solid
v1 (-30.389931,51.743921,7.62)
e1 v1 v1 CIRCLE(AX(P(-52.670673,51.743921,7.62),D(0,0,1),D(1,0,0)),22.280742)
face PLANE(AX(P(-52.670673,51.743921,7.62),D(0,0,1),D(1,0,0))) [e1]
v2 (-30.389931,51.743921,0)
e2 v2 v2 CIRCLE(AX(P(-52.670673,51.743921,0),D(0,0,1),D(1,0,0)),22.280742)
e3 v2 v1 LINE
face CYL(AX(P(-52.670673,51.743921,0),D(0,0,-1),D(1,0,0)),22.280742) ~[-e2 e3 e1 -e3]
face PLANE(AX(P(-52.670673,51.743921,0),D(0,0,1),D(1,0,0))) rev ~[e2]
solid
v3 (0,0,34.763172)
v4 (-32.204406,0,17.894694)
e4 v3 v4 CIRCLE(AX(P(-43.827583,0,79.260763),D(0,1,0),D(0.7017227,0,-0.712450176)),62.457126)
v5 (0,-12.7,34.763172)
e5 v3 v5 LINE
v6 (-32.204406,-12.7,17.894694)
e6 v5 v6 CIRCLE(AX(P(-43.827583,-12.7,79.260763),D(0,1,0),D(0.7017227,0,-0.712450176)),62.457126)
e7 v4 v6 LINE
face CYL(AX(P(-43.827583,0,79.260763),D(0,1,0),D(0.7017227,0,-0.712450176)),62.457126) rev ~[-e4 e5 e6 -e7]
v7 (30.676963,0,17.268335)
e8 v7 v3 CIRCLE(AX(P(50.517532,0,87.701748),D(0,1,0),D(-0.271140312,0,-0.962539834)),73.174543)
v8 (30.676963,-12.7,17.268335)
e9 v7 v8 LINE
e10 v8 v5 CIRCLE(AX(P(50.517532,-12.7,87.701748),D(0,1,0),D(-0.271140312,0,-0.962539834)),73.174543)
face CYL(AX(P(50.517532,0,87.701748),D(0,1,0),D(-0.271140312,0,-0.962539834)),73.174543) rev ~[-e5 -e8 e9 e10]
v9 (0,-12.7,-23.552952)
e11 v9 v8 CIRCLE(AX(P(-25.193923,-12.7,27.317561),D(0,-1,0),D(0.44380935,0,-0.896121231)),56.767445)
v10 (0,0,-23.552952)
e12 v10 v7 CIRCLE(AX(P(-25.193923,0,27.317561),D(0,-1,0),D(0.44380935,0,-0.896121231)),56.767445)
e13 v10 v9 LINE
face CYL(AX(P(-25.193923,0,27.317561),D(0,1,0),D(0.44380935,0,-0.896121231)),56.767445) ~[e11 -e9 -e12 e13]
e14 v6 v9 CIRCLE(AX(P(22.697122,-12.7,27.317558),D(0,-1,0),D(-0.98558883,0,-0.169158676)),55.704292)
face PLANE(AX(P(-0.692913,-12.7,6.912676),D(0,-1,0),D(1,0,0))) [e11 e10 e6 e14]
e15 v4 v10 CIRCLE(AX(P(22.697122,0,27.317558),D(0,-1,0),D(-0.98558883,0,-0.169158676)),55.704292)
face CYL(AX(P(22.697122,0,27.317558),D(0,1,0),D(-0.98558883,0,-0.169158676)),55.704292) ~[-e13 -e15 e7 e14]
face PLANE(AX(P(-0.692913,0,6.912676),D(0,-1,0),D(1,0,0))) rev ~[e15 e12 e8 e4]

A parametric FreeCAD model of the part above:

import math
import FreeCAD as App
import Part
import Sketcher

V = App.Vector

doc = App.newDocument("Part")
params = doc.addObject("Spreadsheet::Sheet", "Params")
for row, (alias, value) in enumerate([
    ("pad1_length", "0.5 in"),
    ("pad2_length", "0.3 in"),
], start=1):
    params.set(f"A{row}", alias)
    params.set(f"B{row}", "=" + value)
    params.setAlias(f"B{row}", alias)

body = doc.addObject("PartDesign::Body", "Body")

# Sketch on XZ plane
sketch1 = doc.addObject("Sketcher::SketchObject", "Sketch")
body.addObject(sketch1)
sketch1.AttachmentSupport = (doc.XZ_Plane, [""])
sketch1.MapMode = "FlatFace"
sketch1.addGeometry(Part.ArcOfCircle(Part.Circle(V(-44, 79, 0), V(0, 0, 1), 62), math.radians(-79), math.radians(-45)), False)
sketch1.addGeometry(Part.ArcOfCircle(Part.Circle(V(23, 27, 0), V(0, 0, 1), 56), math.radians(-170), math.radians(-114)), False)
sketch1.addGeometry(Part.ArcOfCircle(Part.Circle(V(-25, 27, 0), V(0, 0, 1), 57), math.radians(-64), math.radians(-10)), False)
sketch1.addGeometry(Part.ArcOfCircle(Part.Circle(V(51, 88, 0), V(0, 0, 1), 73), math.radians(-134), math.radians(-106)), False)
sketch1.addConstraint(Sketcher.Constraint("Coincident", 0, 1, 1, 1))
sketch1.addConstraint(Sketcher.Constraint("Coincident", 1, 2, 2, 1))
sketch1.addConstraint(Sketcher.Constraint("Coincident", 2, 2, 3, 2))
sketch1.addConstraint(Sketcher.Constraint("Coincident", 3, 1, 0, 2))
sketch1.addConstraint(Sketcher.Constraint("PointOnObject", 1, 2, -2))
sketch1.addConstraint(Sketcher.Constraint("PointOnObject", 3, 1, -2))
sketch1.addConstraint(Sketcher.Constraint("Radius", 0, 62.457126))
sketch1.addConstraint(Sketcher.Constraint("Radius", 1, 55.704292))
sketch1.addConstraint(Sketcher.Constraint("Radius", 2, 56.767445))
sketch1.addConstraint(Sketcher.Constraint("Radius", 3, 73.174543))
sketch1.addConstraint(Sketcher.Constraint("DistanceY", 2, 3, 0, 3, 51.943202))
sketch1.addConstraint(Sketcher.Constraint("DistanceY", 1, 2, 3, 3, 111.2547))
sketch1.addConstraint(Sketcher.Constraint("DistanceY", -1, 1, 1, 3, 27.317558))
sketch1.addConstraint(Sketcher.Constraint("DistanceY", -1, 1, 2, 3, 27.317561))
sketch1.addConstraint(Sketcher.Constraint("DistanceX", -1, 1, 3, 3, 50.517532))
sketch1.addConstraint(Sketcher.Constraint("DistanceY", -1, 1, 3, 1, 34.763172))
pad1 = doc.addObject("PartDesign::Pad", "Pad")
body.addObject(pad1)
pad1.Profile = sketch1
pad1.setExpression("Length", "Params.pad1_length")
body2 = doc.addObject("PartDesign::Body", "Body001")

# Sketch on XY plane
sketch2 = doc.addObject("Sketcher::SketchObject", "Sketch001")
body2.addObject(sketch2)
sketch2.AttachmentSupport = (doc.getObject("XY_Plane001"), [""])
sketch2.MapMode = "FlatFace"
sketch2.addGeometry(Part.Circle(V(-53, 52, 0), V(0, 0, 1), 22), False)
sketch2.addConstraint(Sketcher.Constraint("Diameter", 0, 44.561484))
sketch2.addConstraint(Sketcher.Constraint("DistanceY", -1, 1, 0, 3, 51.743921))
sketch2.addConstraint(Sketcher.Constraint("DistanceX", 0, 3, -1, 1, 52.670673))
pad2 = doc.addObject("PartDesign::Pad", "Pad001")
body2.addObject(pad2)
pad2.Profile = sketch2
pad2.setExpression("Length", "Params.pad2_length")

doc.recompute()
